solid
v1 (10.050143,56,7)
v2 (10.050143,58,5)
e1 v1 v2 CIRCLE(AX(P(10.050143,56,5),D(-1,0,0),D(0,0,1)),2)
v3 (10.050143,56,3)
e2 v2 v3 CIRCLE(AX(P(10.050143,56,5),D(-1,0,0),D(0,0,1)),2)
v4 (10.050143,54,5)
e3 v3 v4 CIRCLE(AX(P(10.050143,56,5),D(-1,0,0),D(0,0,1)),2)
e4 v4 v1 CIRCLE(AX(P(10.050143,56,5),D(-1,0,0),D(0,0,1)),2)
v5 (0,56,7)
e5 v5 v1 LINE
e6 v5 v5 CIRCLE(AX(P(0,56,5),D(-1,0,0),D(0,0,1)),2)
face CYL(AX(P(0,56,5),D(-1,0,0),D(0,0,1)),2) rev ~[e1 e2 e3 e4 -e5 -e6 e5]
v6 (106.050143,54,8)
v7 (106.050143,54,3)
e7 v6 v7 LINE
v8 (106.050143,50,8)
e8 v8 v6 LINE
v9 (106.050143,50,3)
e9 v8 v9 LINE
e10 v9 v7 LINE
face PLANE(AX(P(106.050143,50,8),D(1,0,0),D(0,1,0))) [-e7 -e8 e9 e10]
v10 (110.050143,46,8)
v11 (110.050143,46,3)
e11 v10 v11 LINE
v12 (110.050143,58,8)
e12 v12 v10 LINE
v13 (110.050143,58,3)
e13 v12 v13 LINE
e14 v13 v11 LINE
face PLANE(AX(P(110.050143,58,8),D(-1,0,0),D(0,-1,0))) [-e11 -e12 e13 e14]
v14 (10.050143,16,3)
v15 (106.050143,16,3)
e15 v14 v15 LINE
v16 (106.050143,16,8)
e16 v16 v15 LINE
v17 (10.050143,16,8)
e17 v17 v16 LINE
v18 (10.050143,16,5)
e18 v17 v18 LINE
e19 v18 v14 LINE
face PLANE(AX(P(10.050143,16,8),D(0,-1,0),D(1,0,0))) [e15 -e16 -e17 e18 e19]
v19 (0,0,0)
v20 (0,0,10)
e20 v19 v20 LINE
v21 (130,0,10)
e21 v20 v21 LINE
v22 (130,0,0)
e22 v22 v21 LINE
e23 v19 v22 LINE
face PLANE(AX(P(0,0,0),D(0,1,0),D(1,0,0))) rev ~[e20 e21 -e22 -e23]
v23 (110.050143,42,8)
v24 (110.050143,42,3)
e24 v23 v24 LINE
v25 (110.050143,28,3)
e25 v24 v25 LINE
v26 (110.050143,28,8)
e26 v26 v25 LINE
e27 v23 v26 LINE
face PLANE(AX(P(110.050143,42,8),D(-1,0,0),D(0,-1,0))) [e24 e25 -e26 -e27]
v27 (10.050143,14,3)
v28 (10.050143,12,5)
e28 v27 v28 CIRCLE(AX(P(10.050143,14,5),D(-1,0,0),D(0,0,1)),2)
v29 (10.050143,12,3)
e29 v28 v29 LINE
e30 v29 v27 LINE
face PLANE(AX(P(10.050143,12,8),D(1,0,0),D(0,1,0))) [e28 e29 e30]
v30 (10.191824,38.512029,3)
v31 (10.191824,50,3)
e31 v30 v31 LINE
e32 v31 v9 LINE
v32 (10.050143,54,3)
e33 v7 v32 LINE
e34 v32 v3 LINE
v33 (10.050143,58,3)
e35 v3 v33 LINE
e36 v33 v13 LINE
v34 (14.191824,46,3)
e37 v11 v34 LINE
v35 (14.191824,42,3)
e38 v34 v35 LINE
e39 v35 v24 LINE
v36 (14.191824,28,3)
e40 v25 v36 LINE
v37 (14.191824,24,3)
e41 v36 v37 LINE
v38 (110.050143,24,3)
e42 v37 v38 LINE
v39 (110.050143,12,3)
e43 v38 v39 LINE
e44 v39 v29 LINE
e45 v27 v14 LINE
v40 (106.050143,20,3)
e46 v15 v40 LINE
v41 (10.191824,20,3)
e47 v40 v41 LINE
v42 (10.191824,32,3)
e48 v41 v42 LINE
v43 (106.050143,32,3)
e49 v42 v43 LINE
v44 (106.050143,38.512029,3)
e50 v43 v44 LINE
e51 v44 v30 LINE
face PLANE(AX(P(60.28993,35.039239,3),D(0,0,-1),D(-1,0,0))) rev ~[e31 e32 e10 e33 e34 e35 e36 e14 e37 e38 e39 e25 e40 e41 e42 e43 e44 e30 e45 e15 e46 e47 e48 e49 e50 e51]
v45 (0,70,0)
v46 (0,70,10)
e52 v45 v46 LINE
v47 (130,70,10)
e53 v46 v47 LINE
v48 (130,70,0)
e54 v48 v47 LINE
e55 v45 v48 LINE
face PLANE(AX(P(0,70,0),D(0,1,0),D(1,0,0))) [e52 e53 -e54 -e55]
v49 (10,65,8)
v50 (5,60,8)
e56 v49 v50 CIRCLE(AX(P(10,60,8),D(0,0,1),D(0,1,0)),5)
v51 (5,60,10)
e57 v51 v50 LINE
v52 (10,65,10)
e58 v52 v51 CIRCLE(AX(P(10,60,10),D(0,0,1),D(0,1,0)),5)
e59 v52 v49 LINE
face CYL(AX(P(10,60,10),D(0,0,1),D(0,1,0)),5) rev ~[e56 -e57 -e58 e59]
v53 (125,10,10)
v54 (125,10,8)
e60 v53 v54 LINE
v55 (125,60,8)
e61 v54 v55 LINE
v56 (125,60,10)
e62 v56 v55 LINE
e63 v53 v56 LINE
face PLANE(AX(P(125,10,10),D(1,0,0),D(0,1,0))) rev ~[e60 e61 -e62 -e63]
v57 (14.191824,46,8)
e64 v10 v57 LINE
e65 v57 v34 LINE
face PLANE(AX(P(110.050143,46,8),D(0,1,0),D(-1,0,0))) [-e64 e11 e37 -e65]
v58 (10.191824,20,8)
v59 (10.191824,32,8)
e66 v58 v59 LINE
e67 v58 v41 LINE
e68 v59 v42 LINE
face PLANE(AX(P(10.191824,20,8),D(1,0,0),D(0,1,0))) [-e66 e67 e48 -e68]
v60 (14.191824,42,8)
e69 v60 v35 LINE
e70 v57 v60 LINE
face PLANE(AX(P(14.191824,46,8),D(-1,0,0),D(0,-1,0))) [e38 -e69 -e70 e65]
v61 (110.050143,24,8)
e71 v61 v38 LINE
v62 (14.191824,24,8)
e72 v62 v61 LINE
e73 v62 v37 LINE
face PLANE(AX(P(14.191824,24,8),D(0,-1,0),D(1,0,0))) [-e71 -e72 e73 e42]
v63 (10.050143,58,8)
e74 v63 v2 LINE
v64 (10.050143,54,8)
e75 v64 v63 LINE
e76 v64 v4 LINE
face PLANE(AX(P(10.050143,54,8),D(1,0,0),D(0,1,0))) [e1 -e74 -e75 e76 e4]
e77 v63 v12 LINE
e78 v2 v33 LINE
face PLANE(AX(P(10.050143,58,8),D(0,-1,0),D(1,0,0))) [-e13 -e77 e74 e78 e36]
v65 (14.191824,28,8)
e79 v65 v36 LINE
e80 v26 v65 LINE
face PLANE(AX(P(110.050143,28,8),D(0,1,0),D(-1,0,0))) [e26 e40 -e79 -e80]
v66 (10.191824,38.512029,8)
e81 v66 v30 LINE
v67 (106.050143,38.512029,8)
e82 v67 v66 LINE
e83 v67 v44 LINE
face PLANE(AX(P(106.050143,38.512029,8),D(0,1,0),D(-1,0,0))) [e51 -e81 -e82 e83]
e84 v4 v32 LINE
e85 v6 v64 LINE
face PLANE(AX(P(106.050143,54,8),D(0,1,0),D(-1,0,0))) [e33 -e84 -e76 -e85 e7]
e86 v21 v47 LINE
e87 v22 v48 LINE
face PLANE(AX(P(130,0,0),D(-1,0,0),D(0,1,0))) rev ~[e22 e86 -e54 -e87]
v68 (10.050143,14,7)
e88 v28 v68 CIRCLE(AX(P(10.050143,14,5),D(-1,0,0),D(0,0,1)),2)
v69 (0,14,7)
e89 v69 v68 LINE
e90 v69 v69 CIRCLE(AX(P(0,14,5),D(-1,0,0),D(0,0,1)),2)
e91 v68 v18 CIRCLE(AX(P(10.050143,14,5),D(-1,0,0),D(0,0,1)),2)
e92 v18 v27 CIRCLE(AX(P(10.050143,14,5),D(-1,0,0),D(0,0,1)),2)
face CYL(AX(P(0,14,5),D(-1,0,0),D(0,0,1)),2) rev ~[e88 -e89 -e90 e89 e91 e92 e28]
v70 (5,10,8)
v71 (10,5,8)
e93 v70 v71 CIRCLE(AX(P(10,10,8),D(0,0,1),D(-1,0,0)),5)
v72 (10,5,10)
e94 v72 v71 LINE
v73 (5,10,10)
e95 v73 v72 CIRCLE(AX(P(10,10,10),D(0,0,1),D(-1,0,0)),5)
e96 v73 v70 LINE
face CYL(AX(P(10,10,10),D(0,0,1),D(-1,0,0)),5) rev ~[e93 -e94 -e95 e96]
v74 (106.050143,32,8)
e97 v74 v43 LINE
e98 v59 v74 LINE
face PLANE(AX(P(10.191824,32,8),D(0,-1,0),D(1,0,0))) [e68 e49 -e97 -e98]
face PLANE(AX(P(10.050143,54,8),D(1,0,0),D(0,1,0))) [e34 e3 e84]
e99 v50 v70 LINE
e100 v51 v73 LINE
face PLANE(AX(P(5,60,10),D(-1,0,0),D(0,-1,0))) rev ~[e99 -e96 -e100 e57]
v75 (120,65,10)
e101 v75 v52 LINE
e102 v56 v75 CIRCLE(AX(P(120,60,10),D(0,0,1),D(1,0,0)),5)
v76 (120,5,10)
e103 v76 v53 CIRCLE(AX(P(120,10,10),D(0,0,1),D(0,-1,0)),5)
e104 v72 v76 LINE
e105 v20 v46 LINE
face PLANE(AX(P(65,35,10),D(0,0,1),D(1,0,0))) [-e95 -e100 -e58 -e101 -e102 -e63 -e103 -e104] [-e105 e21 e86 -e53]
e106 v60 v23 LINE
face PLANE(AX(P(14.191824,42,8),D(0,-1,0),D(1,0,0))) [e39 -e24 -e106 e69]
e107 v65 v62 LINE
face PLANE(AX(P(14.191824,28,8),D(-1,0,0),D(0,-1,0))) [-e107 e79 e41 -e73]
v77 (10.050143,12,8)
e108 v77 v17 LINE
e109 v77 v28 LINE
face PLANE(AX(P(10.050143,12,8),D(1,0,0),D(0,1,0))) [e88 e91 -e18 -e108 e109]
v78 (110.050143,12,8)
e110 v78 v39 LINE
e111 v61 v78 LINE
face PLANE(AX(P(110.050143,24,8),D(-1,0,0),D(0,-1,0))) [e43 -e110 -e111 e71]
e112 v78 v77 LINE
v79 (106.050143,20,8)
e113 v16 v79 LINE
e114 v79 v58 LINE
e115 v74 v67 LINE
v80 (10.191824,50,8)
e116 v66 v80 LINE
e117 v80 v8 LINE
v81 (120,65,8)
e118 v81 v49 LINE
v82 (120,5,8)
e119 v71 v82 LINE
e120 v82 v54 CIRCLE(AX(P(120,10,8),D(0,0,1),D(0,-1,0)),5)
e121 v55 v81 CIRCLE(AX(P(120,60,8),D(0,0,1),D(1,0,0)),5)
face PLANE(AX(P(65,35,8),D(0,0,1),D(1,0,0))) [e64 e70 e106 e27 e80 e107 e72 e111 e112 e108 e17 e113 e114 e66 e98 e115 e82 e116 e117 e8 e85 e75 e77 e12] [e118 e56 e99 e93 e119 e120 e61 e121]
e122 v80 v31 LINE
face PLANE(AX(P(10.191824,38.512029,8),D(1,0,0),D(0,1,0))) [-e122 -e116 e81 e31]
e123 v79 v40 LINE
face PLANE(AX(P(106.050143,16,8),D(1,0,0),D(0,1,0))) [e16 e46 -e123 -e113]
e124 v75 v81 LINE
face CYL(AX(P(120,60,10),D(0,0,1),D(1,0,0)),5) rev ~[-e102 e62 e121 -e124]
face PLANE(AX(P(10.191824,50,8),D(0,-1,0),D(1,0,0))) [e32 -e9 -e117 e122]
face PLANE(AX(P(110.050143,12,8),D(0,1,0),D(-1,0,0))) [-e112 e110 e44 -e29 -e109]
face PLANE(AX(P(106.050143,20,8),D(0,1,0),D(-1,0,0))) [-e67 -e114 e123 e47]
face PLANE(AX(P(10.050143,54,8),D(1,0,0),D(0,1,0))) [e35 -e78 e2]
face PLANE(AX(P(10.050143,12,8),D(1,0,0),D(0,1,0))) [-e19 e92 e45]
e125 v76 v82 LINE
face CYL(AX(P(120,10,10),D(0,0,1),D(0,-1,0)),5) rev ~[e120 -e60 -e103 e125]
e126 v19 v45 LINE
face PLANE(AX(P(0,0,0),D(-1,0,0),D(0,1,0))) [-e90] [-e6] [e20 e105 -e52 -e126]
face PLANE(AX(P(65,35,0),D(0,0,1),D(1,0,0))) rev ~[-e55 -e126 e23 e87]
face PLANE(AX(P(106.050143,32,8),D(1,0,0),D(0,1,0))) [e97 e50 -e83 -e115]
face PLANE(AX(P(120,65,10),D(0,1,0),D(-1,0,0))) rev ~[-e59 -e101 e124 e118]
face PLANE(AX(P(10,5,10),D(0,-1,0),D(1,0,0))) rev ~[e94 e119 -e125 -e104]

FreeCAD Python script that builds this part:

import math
import FreeCAD as App
import Part
import Sketcher
from FreeCAD import Vector
Q = App.Units.Quantity


def add_polygon(sketch, points):
    """Adds a closed chain of lines whose ends are joined by coincident constraints."""
    first, n = sketch.GeometryCount, len(points)
    for a, b in zip(points, points[1:] + points[:1]):
        sketch.addGeometry(Part.LineSegment(App.Vector(*a, 0), App.Vector(*b, 0)), False)
    for i in range(n):
        sketch.addConstraint(Sketcher.Constraint("Coincident", first + i, 2, first + (i + 1) % n, 1))

doc = App.newDocument("Part")
params = doc.addObject("Spreadsheet::Sheet", "Params")
for row, (alias, value) in enumerate([
    ("sketch1_width", "130 mm"),
    ("sketch1_height", "70 mm"),
    ("pad1_length", "10 mm"),
    ("sketch2_radius", "5 mm"),
    ("sketch2_width", "110 mm"),
    ("sketch2_height", "50 mm"),
    ("pocket1_length", "2 mm"),
    ("sketch3_diameter", "4 mm"),
    ("pocket2_length", "20 mm"),
    ("sketch4_width", "100 mm"),
    ("sketch4_width2", "96 mm"),
    ("sketch4_height", "4 mm"),
    ("sketch4_height2", "12 mm"),
    ("sketch4_height3", "14 mm"),
    ("pocket3_length", "5 mm"),
], start=1):
    params.set(f"A{row}", alias)
    params.set(f"B{row}", "=" + value)
    params.setAlias(f"B{row}", alias)

body = doc.addObject("PartDesign::Body", "Body")

sketch1 = doc.addObject("Sketcher::SketchObject", "Sketch")
body.addObject(sketch1)
sketch1.AttachmentSupport = (doc.XY_Plane, [""])
sketch1.MapMode = "FlatFace"
add_polygon(sketch1, [(0, 70), (0, 0), (130, 0), (130, 70)])
sketch1.addConstraint([
    Sketcher.Constraint("Vertical", 0),
    Sketcher.Constraint("Horizontal", 1),
    Sketcher.Constraint("Vertical", 2),
    Sketcher.Constraint("Horizontal", 3),
    Sketcher.Constraint("Coincident", 0, 2, -1, 1),
    Sketcher.Constraint("DistanceX", 1, 1, 1, 2, Q("130 mm")),
    Sketcher.Constraint("DistanceY", 0, 2, 0, 1, Q("70 mm")),
])
sketch1.setExpression("Constraints[9]", "Params.sketch1_width")
sketch1.setExpression("Constraints[10]", "Params.sketch1_height")
pad1 = doc.addObject("PartDesign::Pad", "Pad")
body.addObject(pad1)
pad1.Profile = sketch1
pad1.setExpression("Length", "Params.pad1_length")

sketch2 = doc.addObject("Sketcher::SketchObject", "Sketch001")
body.addObject(sketch2)
sketch2.AttachmentSupport = (doc.XY_Plane, [""])
sketch2.MapMode = "FlatFace"
sketch2.AttachmentOffset = App.Placement(Vector(0, 0, 10), App.Rotation())
sketch2.addGeometry([
    Part.LineSegment(Vector(10, 5, 0), Vector(120, 5, 0)),
    Part.ArcOfCircle(Part.Circle(Vector(120, 10, 0), Vector(0, 0, 1), 5), math.radians(-90), math.radians(0)),
    Part.LineSegment(Vector(125, 10, 0), Vector(125, 60, 0)),
    Part.ArcOfCircle(Part.Circle(Vector(120, 60, 0), Vector(0, 0, 1), 5), math.radians(0), math.radians(90)),
    Part.LineSegment(Vector(120, 65, 0), Vector(10, 65, 0)),
    Part.ArcOfCircle(Part.Circle(Vector(10, 60, 0), Vector(0, 0, 1), 5), math.radians(90), math.radians(180)),
    Part.LineSegment(Vector(5, 60, 0), Vector(5, 10, 0)),
    Part.ArcOfCircle(Part.Circle(Vector(10, 10, 0), Vector(0, 0, 1), 5), math.radians(180), math.radians(270)),
], False)
sketch2.addConstraint([
    Sketcher.Constraint("Tangent", 0, 2, 1, 1),
    Sketcher.Constraint("Tangent", 1, 2, 2, 1),
    Sketcher.Constraint("Tangent", 2, 2, 3, 1),
    Sketcher.Constraint("Tangent", 3, 2, 4, 1),
    Sketcher.Constraint("Tangent", 4, 2, 5, 1),
    Sketcher.Constraint("Tangent", 5, 2, 6, 1),
    Sketcher.Constraint("Tangent", 6, 2, 7, 1),
    Sketcher.Constraint("Tangent", 7, 2, 0, 1),
    Sketcher.Constraint("Horizontal", 0),
    Sketcher.Constraint("Vertical", 2),
    Sketcher.Constraint("Horizontal", 4),
    Sketcher.Constraint("Vertical", 6),
    Sketcher.Constraint("Equal", 1, 3),
    Sketcher.Constraint("Equal", 3, 5),
    Sketcher.Constraint("Equal", 5, 7),
    Sketcher.Constraint("Radius", 1, Q("5 mm")),
    Sketcher.Constraint("DistanceX", 0, 1, 0, 2, Q("110 mm")),
    Sketcher.Constraint("DistanceY", 2, 1, 2, 2, Q("50 mm")),
    Sketcher.Constraint("DistanceX", -1, 1, 1, 3, Q("120 mm")),
    Sketcher.Constraint("DistanceY", -1, 1, 1, 3, Q("10 mm")),
])
sketch2.setExpression("Constraints[15]", "Params.sketch2_radius")
sketch2.setExpression("Constraints[16]", "Params.sketch2_width")
sketch2.setExpression("Constraints[17]", "Params.sketch2_height")
pocket1 = doc.addObject("PartDesign::Pocket", "Pocket")
body.addObject(pocket1)
pocket1.Profile = sketch2
pocket1.setExpression("Length", "Params.pocket1_length")

sketch3 = doc.addObject("Sketcher::SketchObject", "Sketch002")
body.addObject(sketch3)
sketch3.AttachmentSupport = (doc.YZ_Plane, [""])
sketch3.MapMode = "FlatFace"
sketch3.addGeometry([
    Part.Circle(Vector(56, 5, 0), Vector(0, 0, 1), 2),
    Part.Circle(Vector(14, 5, 0), Vector(0, 0, 1), 2),
], False)
sketch3.addConstraint([
    Sketcher.Constraint("Equal", 0, 1),
    Sketcher.Constraint("Horizontal", 0, 3, 1, 3),
    Sketcher.Constraint("Diameter", 0, Q("4 mm")),
    Sketcher.Constraint("DistanceX", -1, 1, 0, 3, Q("56 mm")),
    Sketcher.Constraint("DistanceY", -1, 1, 0, 3, Q("5 mm")),
    Sketcher.Constraint("DistanceX", -1, 1, 1, 3, Q("14 mm")),
])
sketch3.setExpression("Constraints[2]", "Params.sketch3_diameter")
pocket2 = doc.addObject("PartDesign::Pocket", "Pocket001")
body.addObject(pocket2)
pocket2.Profile = sketch3
pocket2.setExpression("Length", "Params.pocket2_length")
pocket2.Reversed = True

sketch4 = doc.addObject("Sketcher::SketchObject", "Sketch003")
body.addObject(sketch4)
sketch4.AttachmentSupport = (doc.XY_Plane, [""])
sketch4.MapMode = "FlatFace"
sketch4.AttachmentOffset = App.Placement(Vector(0, 0, 8), App.Rotation())
add_polygon(sketch4, [(110.1, 58), (10.1, 58), (10.1, 54), (106.1, 54), (106.1, 50), (10.2, 50), (10.2, 38.5), (106.1, 38.5), (106.1, 32), (10.2, 32), (10.2, 20), (106.1, 20), (106.1, 16), (10.1, 16), (10.1, 12), (110.1, 12), (110.1, 24), (14.2, 24), (14.2, 28), (110.1, 28), (110.1, 42), (14.2, 42), (14.2, 46), (110.1, 46)])
sketch4.addConstraint([
    Sketcher.Constraint("Horizontal", 0),
    Sketcher.Constraint("Vertical", 1),
    Sketcher.Constraint("Horizontal", 2),
    Sketcher.Constraint("Vertical", 3),
    Sketcher.Constraint("Horizontal", 4),
    Sketcher.Constraint("Vertical", 5),
    Sketcher.Constraint("Horizontal", 6),
    Sketcher.Constraint("Vertical", 7),
    Sketcher.Constraint("Horizontal", 8),
    Sketcher.Constraint("Vertical", 9),
    Sketcher.Constraint("Horizontal", 10),
    Sketcher.Constraint("Vertical", 11),
    Sketcher.Constraint("Horizontal", 12),
    Sketcher.Constraint("Vertical", 13),
    Sketcher.Constraint("Horizontal", 14),
    Sketcher.Constraint("Vertical", 15),
    Sketcher.Constraint("Horizontal", 16),
    Sketcher.Constraint("Vertical", 17),
    Sketcher.Constraint("Horizontal", 18),
    Sketcher.Constraint("Vertical", 19),
    Sketcher.Constraint("Horizontal", 20),
    Sketcher.Constraint("Vertical", 21),
    Sketcher.Constraint("Horizontal", 22),
    Sketcher.Constraint("Vertical", 23),
    Sketcher.Constraint("Vertical", 3, 2, 6, 2),
    Sketcher.Constraint("Vertical", 5, 2, 8, 2),
    Sketcher.Constraint("Vertical", 7, 2, 10, 2),
    Sketcher.Constraint("Vertical", 1, 2, 12, 2),
    Sketcher.Constraint("Vertical", 15, 2, 18, 2),
    Sketcher.Constraint("Vertical", 17, 2, 20, 2),
    Sketcher.Constraint("Vertical", 19, 2, 22, 2),
    Sketcher.Constraint("Equal", 10, 16),
    Sketcher.Constraint("Equal", 1, 3),
    Sketcher.Constraint("Equal", 3, 11),
    Sketcher.Constraint("Equal", 11, 13),
    Sketcher.Constraint("Equal", 9, 15),
    Sketcher.Constraint("Equal", 13, 17),
    Sketcher.Constraint("Equal", 17, 21),
    Sketcher.Constraint("Equal", 15, 23),
    Sketcher.Constraint("DistanceX", 0, 2, 0, 1, Q("100 mm")),
    Sketcher.Constraint("DistanceX", 2, 1, 2, 2, Q("96 mm")),
    Sketcher.Constraint("DistanceY", 1, 2, 1, 1, Q("4 mm")),
    Sketcher.Constraint("DistanceY", 9, 2, 9, 1, Q("12 mm")),
    Sketcher.Constraint("DistanceY", 19, 1, 19, 2, Q("14 mm")),
    Sketcher.Constraint("DistanceY", -1, 1, 0, 2, Q("58 mm")),
    Sketcher.Constraint("DistanceX", 4, 2, 4, 1, Q("95.858319 mm")),
    Sketcher.Constraint("DistanceY", 5, 2, 5, 1, Q("11.487971 mm")),
    Sketcher.Constraint("DistanceX", -1, 1, 0, 2, Q("10.050143 mm")),
])
sketch4.setExpression("Constraints[63]", "Params.sketch4_width")
sketch4.setExpression("Constraints[64]", "Params.sketch4_width2")
sketch4.setExpression("Constraints[65]", "Params.sketch4_height")
sketch4.setExpression("Constraints[66]", "Params.sketch4_height2")
sketch4.setExpression("Constraints[67]", "Params.sketch4_height3")
pocket3 = doc.addObject("PartDesign::Pocket", "Pocket002")
body.addObject(pocket3)
pocket3.Profile = sketch4
pocket3.setExpression("Length", "Params.pocket3_length")

doc.recompute()
